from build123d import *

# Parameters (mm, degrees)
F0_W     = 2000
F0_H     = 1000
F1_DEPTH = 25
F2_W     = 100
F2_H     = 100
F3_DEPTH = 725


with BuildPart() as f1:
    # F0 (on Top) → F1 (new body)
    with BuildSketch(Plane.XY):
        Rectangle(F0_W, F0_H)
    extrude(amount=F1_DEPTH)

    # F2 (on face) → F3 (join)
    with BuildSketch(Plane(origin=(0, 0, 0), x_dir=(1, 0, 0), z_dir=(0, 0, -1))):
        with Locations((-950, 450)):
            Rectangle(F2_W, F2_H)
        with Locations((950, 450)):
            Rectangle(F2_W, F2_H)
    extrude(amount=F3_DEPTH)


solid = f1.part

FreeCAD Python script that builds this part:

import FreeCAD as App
import Part
import Sketcher
Q = App.Units.Quantity

doc = App.newDocument("Part")
body = doc.addObject("PartDesign::Body", "Body")

sketch1 = doc.addObject("Sketcher::SketchObject", "Sketch")
body.addObject(sketch1)
sketch1.AttachmentSupport = (doc.XY_Plane, [""])
sketch1.MapMode = "FlatFace"
sketch1.addGeometry(Part.LineSegment(App.Vector(-1000, 500, 0), App.Vector(-1000, -500, 0)), False)
sketch1.addGeometry(Part.LineSegment(App.Vector(-1000, -500, 0), App.Vector(1000, -500, 0)), False)
sketch1.addGeometry(Part.LineSegment(App.Vector(1000, -500, 0), App.Vector(1000, 500, 0)), False)
sketch1.addGeometry(Part.LineSegment(App.Vector(1000, 500, 0), App.Vector(-1000, 500, 0)), False)
sketch1.addConstraint(Sketcher.Constraint("Coincident", 0, 2, 1, 1))
sketch1.addConstraint(Sketcher.Constraint("Coincident", 1, 2, 2, 1))
sketch1.addConstraint(Sketcher.Constraint("Coincident", 2, 2, 3, 1))
sketch1.addConstraint(Sketcher.Constraint("Coincident", 3, 2, 0, 1))
sketch1.addConstraint(Sketcher.Constraint("Vertical", 0))
sketch1.addConstraint(Sketcher.Constraint("Horizontal", 1))
sketch1.addConstraint(Sketcher.Constraint("Vertical", 2))
sketch1.addConstraint(Sketcher.Constraint("Horizontal", 3))
sketch1.addConstraint(Sketcher.Constraint("Symmetric", 0, 2, 2, 2, -1, 1))
sketch1.addConstraint(Sketcher.Constraint("DistanceX", 1, 1, 1, 2, Q("2000 mm")))
sketch1.addConstraint(Sketcher.Constraint("DistanceY", 0, 2, 0, 1, Q("1000 mm")))
pad1 = doc.addObject("PartDesign::Pad", "Pad")
body.addObject(pad1)
pad1.Profile = sketch1
pad1.Length = 25

sketch2 = doc.addObject("Sketcher::SketchObject", "Sketch001")
body.addObject(sketch2)
sketch2.AttachmentSupport = (doc.XY_Plane, [""])
sketch2.MapMode = "FlatFace"
sketch2.addGeometry(Part.LineSegment(App.Vector(-1000, -500, 0), App.Vector(-1000, -400, 0)), False)
sketch2.addGeometry(Part.LineSegment(App.Vector(-1000, -400, 0), App.Vector(-900, -400, 0)), False)
sketch2.addGeometry(Part.LineSegment(App.Vector(-900, -400, 0), App.Vector(-900, -500, 0)), False)
sketch2.addGeometry(Part.LineSegment(App.Vector(-900, -500, 0), App.Vector(-1000, -500, 0)), False)
sketch2.addGeometry(Part.LineSegment(App.Vector(900, -500, 0), App.Vector(900, -400, 0)), False)
sketch2.addGeometry(Part.LineSegment(App.Vector(900, -400, 0), App.Vector(1000, -400, 0)), False)
sketch2.addGeometry(Part.LineSegment(App.Vector(1000, -400, 0), App.Vector(1000, -500, 0)), False)
sketch2.addGeometry(Part.LineSegment(App.Vector(1000, -500, 0), App.Vector(900, -500, 0)), False)
sketch2.addConstraint(Sketcher.Constraint("Coincident", 0, 2, 1, 1))
sketch2.addConstraint(Sketcher.Constraint("Coincident", 1, 2, 2, 1))
sketch2.addConstraint(Sketcher.Constraint("Coincident", 2, 2, 3, 1))
sketch2.addConstraint(Sketcher.Constraint("Coincident", 3, 2, 0, 1))
sketch2.addConstraint(Sketcher.Constraint("Coincident", 4, 2, 5, 1))
sketch2.addConstraint(Sketcher.Constraint("Coincident", 5, 2, 6, 1))
sketch2.addConstraint(Sketcher.Constraint("Coincident", 6, 2, 7, 1))
sketch2.addConstraint(Sketcher.Constraint("Coincident", 7, 2, 4, 1))
sketch2.addConstraint(Sketcher.Constraint("Vertical", 0))
sketch2.addConstraint(Sketcher.Constraint("Horizontal", 1))
sketch2.addConstraint(Sketcher.Constraint("Vertical", 2))
sketch2.addConstraint(Sketcher.Constraint("Horizontal", 3))
sketch2.addConstraint(Sketcher.Constraint("Vertical", 4))
sketch2.addConstraint(Sketcher.Constraint("Horizontal", 5))
sketch2.addConstraint(Sketcher.Constraint("Vertical", 6))
sketch2.addConstraint(Sketcher.Constraint("Horizontal", 7))
sketch2.addConstraint(Sketcher.Constraint("Symmetric", 1, 2, 4, 2, -2))
sketch2.addConstraint(Sketcher.Constraint("Symmetric", 3, 2, 6, 2, -2))
sketch2.addConstraint(Sketcher.Constraint("Equal", 7, 0))
sketch2.addConstraint(Sketcher.Constraint("DistanceX", 1, 1, 1, 2, Q("100 mm")))
sketch2.addConstraint(Sketcher.Constraint("DistanceX", 0, 2, -1, 1, Q("1000 mm")))
sketch2.addConstraint(Sketcher.Constraint("DistanceY", 0, 2, -1, 1, Q("400 mm")))
pad2 = doc.addObject("PartDesign::Pad", "Pad001")
body.addObject(pad2)
pad2.Profile = sketch2
pad2.Length = 725
pad2.Reversed = True

doc.recompute()
